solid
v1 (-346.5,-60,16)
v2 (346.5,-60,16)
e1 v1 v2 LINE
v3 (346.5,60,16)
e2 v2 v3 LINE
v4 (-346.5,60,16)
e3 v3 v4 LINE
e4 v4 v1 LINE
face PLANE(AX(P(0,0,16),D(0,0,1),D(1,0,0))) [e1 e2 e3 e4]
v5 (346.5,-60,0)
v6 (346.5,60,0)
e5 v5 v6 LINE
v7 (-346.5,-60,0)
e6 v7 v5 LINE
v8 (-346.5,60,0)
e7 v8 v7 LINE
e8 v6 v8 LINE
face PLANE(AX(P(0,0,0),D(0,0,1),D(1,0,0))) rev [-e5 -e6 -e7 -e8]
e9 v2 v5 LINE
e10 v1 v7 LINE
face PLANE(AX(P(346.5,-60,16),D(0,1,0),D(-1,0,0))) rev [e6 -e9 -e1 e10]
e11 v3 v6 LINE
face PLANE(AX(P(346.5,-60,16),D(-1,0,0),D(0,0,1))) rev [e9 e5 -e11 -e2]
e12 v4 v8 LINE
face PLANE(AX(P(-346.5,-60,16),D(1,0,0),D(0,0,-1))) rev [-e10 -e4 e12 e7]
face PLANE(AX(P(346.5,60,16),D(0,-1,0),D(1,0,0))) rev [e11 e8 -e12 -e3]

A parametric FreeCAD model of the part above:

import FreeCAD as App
import Part
import Sketcher


def add_polygon(sketch, points):
    """Adds a closed chain of lines whose ends are joined by coincident constraints."""
    first, n = sketch.GeometryCount, len(points)
    for a, b in zip(points, points[1:] + points[:1]):
        sketch.addGeometry(Part.LineSegment(App.Vector(*a, 0), App.Vector(*b, 0)), False)
    for i in range(n):
        sketch.addConstraint(Sketcher.Constraint("Coincident", first + i, 2, first + (i + 1) % n, 1))

doc = App.newDocument("Part")
body = doc.addObject("PartDesign::Body", "Body")

# Sketch on XY plane
sketch1 = body.newObject("Sketcher::SketchObject", "Sketch")
sketch1.AttachmentSupport = (doc.getObject("XY_Plane"), [""])
sketch1.MapMode = "FlatFace"
add_polygon(sketch1, [(-346, 60), (-346, -60), (346, -60), (346, 60)])  # lines 0-3
sketch1.addConstraint([
    Sketcher.Constraint("Vertical", 0),
    Sketcher.Constraint("Horizontal", 1),
    Sketcher.Constraint("Vertical", 2),
    Sketcher.Constraint("Horizontal", 3),
    Sketcher.Constraint("Symmetric", 0, 2, 2, 2, -1, 1),
    Sketcher.Constraint("DistanceX", 1, 1, 1, 2, 693.0),
    Sketcher.Constraint("DistanceY", 0, 2, 0, 1, 120.0),
])
pad1 = body.newObject("PartDesign::Pad", "Pad")
pad1.Profile = sketch1
pad1.Length = 16

doc.recompute()
